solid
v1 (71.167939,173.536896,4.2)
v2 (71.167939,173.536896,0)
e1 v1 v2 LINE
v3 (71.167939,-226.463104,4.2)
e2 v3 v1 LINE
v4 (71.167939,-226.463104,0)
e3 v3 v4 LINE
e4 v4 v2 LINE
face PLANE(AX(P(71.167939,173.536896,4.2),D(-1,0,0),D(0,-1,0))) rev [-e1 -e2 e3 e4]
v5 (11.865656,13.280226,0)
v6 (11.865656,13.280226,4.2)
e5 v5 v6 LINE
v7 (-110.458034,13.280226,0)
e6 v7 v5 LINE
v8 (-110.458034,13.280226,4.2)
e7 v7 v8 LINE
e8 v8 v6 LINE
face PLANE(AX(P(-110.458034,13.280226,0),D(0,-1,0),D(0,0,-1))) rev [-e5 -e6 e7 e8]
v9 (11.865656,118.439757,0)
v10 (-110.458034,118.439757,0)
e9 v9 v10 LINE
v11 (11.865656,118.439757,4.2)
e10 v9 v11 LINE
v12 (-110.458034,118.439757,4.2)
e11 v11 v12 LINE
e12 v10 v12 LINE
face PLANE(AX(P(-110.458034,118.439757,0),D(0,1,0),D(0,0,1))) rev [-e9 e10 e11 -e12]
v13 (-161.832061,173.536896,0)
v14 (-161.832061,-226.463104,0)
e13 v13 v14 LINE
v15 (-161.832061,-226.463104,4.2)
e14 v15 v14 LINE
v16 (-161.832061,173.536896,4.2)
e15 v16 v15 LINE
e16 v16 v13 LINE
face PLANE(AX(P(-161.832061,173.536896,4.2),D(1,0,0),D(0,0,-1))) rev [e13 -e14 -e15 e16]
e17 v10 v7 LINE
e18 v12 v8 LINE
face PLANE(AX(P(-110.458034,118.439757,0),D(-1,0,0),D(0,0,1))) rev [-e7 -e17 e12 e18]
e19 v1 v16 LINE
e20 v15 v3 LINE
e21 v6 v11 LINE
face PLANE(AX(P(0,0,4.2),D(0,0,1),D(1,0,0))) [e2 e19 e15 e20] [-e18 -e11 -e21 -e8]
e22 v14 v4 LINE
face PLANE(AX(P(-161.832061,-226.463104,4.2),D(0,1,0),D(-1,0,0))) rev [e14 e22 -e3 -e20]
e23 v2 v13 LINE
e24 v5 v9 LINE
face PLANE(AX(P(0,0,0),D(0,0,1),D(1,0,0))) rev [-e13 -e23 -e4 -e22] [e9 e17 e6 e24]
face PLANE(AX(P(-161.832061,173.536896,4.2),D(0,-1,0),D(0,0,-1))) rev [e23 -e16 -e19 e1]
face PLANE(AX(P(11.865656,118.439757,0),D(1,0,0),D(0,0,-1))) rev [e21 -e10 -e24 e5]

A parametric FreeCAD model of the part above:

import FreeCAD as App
import Part
import Sketcher
from FreeCAD import Vector


def add_polygon(sketch, points):
    """Adds a closed chain of lines whose ends are joined by coincident constraints."""
    first, n = sketch.GeometryCount, len(points)
    for a, b in zip(points, points[1:] + points[:1]):
        sketch.addGeometry(Part.LineSegment(App.Vector(*a, 0), App.Vector(*b, 0)), False)
    for i in range(n):
        sketch.addConstraint(Sketcher.Constraint("Coincident", first + i, 2, first + (i + 1) % n, 1))

doc = App.newDocument("Part")
body = doc.addObject("PartDesign::Body", "Body")

# Sketch on XY plane
sketch1 = body.newObject("Sketcher::SketchObject", "Sketch")
sketch1.AttachmentSupport = (doc.getObject("XY_Plane"), [""])
sketch1.MapMode = "FlatFace"
add_polygon(sketch1, [(-162, 174), (-162, -226), (71, -226), (71, 174)])  # lines 0-3
sketch1.addConstraint([
    Sketcher.Constraint("Vertical", 0),
    Sketcher.Constraint("Horizontal", 1),
    Sketcher.Constraint("Vertical", 2),
    Sketcher.Constraint("Horizontal", 3),
    Sketcher.Constraint("DistanceX", 1, 1, 1, 2, 233.0),
    Sketcher.Constraint("DistanceY", 0, 2, 0, 1, 400.0),
    Sketcher.Constraint("DistanceX", 0, 2, -1, 1, 161.832061),
    Sketcher.Constraint("DistanceY", 0, 2, -1, 1, 226.463104),
])
pad1 = body.newObject("PartDesign::Pad", "Pad")
pad1.Profile = sketch1
pad1.Length = 4.2

# Sketch on XY plane
sketch2 = body.newObject("Sketcher::SketchObject", "Sketch001")
sketch2.AttachmentSupport = (doc.getObject("XY_Plane"), [""])
sketch2.MapMode = "FlatFace"
sketch2.AttachmentOffset = App.Placement(Vector(0, 0, 4.2), App.Rotation())
add_polygon(sketch2, [(-110, 118), (-110, 13), (12, 13), (12, 118)])  # lines 0-3
sketch2.addConstraint([
    Sketcher.Constraint("Vertical", 0),
    Sketcher.Constraint("Horizontal", 1),
    Sketcher.Constraint("Vertical", 2),
    Sketcher.Constraint("Horizontal", 3),
    Sketcher.Constraint("DistanceX", 1, 1, 1, 2, 122.32369),
    Sketcher.Constraint("DistanceY", 0, 2, 0, 1, 105.159531),
    Sketcher.Constraint("DistanceX", 0, 2, -1, 1, 110.458034),
    Sketcher.Constraint("DistanceY", -1, 1, 0, 2, 13.280226),
])
pocket1 = body.newObject("PartDesign::Pocket", "Pocket")
pocket1.Profile = sketch2
pocket1.Type = "ThroughAll"
pocket1.Midplane = True

doc.recompute()
